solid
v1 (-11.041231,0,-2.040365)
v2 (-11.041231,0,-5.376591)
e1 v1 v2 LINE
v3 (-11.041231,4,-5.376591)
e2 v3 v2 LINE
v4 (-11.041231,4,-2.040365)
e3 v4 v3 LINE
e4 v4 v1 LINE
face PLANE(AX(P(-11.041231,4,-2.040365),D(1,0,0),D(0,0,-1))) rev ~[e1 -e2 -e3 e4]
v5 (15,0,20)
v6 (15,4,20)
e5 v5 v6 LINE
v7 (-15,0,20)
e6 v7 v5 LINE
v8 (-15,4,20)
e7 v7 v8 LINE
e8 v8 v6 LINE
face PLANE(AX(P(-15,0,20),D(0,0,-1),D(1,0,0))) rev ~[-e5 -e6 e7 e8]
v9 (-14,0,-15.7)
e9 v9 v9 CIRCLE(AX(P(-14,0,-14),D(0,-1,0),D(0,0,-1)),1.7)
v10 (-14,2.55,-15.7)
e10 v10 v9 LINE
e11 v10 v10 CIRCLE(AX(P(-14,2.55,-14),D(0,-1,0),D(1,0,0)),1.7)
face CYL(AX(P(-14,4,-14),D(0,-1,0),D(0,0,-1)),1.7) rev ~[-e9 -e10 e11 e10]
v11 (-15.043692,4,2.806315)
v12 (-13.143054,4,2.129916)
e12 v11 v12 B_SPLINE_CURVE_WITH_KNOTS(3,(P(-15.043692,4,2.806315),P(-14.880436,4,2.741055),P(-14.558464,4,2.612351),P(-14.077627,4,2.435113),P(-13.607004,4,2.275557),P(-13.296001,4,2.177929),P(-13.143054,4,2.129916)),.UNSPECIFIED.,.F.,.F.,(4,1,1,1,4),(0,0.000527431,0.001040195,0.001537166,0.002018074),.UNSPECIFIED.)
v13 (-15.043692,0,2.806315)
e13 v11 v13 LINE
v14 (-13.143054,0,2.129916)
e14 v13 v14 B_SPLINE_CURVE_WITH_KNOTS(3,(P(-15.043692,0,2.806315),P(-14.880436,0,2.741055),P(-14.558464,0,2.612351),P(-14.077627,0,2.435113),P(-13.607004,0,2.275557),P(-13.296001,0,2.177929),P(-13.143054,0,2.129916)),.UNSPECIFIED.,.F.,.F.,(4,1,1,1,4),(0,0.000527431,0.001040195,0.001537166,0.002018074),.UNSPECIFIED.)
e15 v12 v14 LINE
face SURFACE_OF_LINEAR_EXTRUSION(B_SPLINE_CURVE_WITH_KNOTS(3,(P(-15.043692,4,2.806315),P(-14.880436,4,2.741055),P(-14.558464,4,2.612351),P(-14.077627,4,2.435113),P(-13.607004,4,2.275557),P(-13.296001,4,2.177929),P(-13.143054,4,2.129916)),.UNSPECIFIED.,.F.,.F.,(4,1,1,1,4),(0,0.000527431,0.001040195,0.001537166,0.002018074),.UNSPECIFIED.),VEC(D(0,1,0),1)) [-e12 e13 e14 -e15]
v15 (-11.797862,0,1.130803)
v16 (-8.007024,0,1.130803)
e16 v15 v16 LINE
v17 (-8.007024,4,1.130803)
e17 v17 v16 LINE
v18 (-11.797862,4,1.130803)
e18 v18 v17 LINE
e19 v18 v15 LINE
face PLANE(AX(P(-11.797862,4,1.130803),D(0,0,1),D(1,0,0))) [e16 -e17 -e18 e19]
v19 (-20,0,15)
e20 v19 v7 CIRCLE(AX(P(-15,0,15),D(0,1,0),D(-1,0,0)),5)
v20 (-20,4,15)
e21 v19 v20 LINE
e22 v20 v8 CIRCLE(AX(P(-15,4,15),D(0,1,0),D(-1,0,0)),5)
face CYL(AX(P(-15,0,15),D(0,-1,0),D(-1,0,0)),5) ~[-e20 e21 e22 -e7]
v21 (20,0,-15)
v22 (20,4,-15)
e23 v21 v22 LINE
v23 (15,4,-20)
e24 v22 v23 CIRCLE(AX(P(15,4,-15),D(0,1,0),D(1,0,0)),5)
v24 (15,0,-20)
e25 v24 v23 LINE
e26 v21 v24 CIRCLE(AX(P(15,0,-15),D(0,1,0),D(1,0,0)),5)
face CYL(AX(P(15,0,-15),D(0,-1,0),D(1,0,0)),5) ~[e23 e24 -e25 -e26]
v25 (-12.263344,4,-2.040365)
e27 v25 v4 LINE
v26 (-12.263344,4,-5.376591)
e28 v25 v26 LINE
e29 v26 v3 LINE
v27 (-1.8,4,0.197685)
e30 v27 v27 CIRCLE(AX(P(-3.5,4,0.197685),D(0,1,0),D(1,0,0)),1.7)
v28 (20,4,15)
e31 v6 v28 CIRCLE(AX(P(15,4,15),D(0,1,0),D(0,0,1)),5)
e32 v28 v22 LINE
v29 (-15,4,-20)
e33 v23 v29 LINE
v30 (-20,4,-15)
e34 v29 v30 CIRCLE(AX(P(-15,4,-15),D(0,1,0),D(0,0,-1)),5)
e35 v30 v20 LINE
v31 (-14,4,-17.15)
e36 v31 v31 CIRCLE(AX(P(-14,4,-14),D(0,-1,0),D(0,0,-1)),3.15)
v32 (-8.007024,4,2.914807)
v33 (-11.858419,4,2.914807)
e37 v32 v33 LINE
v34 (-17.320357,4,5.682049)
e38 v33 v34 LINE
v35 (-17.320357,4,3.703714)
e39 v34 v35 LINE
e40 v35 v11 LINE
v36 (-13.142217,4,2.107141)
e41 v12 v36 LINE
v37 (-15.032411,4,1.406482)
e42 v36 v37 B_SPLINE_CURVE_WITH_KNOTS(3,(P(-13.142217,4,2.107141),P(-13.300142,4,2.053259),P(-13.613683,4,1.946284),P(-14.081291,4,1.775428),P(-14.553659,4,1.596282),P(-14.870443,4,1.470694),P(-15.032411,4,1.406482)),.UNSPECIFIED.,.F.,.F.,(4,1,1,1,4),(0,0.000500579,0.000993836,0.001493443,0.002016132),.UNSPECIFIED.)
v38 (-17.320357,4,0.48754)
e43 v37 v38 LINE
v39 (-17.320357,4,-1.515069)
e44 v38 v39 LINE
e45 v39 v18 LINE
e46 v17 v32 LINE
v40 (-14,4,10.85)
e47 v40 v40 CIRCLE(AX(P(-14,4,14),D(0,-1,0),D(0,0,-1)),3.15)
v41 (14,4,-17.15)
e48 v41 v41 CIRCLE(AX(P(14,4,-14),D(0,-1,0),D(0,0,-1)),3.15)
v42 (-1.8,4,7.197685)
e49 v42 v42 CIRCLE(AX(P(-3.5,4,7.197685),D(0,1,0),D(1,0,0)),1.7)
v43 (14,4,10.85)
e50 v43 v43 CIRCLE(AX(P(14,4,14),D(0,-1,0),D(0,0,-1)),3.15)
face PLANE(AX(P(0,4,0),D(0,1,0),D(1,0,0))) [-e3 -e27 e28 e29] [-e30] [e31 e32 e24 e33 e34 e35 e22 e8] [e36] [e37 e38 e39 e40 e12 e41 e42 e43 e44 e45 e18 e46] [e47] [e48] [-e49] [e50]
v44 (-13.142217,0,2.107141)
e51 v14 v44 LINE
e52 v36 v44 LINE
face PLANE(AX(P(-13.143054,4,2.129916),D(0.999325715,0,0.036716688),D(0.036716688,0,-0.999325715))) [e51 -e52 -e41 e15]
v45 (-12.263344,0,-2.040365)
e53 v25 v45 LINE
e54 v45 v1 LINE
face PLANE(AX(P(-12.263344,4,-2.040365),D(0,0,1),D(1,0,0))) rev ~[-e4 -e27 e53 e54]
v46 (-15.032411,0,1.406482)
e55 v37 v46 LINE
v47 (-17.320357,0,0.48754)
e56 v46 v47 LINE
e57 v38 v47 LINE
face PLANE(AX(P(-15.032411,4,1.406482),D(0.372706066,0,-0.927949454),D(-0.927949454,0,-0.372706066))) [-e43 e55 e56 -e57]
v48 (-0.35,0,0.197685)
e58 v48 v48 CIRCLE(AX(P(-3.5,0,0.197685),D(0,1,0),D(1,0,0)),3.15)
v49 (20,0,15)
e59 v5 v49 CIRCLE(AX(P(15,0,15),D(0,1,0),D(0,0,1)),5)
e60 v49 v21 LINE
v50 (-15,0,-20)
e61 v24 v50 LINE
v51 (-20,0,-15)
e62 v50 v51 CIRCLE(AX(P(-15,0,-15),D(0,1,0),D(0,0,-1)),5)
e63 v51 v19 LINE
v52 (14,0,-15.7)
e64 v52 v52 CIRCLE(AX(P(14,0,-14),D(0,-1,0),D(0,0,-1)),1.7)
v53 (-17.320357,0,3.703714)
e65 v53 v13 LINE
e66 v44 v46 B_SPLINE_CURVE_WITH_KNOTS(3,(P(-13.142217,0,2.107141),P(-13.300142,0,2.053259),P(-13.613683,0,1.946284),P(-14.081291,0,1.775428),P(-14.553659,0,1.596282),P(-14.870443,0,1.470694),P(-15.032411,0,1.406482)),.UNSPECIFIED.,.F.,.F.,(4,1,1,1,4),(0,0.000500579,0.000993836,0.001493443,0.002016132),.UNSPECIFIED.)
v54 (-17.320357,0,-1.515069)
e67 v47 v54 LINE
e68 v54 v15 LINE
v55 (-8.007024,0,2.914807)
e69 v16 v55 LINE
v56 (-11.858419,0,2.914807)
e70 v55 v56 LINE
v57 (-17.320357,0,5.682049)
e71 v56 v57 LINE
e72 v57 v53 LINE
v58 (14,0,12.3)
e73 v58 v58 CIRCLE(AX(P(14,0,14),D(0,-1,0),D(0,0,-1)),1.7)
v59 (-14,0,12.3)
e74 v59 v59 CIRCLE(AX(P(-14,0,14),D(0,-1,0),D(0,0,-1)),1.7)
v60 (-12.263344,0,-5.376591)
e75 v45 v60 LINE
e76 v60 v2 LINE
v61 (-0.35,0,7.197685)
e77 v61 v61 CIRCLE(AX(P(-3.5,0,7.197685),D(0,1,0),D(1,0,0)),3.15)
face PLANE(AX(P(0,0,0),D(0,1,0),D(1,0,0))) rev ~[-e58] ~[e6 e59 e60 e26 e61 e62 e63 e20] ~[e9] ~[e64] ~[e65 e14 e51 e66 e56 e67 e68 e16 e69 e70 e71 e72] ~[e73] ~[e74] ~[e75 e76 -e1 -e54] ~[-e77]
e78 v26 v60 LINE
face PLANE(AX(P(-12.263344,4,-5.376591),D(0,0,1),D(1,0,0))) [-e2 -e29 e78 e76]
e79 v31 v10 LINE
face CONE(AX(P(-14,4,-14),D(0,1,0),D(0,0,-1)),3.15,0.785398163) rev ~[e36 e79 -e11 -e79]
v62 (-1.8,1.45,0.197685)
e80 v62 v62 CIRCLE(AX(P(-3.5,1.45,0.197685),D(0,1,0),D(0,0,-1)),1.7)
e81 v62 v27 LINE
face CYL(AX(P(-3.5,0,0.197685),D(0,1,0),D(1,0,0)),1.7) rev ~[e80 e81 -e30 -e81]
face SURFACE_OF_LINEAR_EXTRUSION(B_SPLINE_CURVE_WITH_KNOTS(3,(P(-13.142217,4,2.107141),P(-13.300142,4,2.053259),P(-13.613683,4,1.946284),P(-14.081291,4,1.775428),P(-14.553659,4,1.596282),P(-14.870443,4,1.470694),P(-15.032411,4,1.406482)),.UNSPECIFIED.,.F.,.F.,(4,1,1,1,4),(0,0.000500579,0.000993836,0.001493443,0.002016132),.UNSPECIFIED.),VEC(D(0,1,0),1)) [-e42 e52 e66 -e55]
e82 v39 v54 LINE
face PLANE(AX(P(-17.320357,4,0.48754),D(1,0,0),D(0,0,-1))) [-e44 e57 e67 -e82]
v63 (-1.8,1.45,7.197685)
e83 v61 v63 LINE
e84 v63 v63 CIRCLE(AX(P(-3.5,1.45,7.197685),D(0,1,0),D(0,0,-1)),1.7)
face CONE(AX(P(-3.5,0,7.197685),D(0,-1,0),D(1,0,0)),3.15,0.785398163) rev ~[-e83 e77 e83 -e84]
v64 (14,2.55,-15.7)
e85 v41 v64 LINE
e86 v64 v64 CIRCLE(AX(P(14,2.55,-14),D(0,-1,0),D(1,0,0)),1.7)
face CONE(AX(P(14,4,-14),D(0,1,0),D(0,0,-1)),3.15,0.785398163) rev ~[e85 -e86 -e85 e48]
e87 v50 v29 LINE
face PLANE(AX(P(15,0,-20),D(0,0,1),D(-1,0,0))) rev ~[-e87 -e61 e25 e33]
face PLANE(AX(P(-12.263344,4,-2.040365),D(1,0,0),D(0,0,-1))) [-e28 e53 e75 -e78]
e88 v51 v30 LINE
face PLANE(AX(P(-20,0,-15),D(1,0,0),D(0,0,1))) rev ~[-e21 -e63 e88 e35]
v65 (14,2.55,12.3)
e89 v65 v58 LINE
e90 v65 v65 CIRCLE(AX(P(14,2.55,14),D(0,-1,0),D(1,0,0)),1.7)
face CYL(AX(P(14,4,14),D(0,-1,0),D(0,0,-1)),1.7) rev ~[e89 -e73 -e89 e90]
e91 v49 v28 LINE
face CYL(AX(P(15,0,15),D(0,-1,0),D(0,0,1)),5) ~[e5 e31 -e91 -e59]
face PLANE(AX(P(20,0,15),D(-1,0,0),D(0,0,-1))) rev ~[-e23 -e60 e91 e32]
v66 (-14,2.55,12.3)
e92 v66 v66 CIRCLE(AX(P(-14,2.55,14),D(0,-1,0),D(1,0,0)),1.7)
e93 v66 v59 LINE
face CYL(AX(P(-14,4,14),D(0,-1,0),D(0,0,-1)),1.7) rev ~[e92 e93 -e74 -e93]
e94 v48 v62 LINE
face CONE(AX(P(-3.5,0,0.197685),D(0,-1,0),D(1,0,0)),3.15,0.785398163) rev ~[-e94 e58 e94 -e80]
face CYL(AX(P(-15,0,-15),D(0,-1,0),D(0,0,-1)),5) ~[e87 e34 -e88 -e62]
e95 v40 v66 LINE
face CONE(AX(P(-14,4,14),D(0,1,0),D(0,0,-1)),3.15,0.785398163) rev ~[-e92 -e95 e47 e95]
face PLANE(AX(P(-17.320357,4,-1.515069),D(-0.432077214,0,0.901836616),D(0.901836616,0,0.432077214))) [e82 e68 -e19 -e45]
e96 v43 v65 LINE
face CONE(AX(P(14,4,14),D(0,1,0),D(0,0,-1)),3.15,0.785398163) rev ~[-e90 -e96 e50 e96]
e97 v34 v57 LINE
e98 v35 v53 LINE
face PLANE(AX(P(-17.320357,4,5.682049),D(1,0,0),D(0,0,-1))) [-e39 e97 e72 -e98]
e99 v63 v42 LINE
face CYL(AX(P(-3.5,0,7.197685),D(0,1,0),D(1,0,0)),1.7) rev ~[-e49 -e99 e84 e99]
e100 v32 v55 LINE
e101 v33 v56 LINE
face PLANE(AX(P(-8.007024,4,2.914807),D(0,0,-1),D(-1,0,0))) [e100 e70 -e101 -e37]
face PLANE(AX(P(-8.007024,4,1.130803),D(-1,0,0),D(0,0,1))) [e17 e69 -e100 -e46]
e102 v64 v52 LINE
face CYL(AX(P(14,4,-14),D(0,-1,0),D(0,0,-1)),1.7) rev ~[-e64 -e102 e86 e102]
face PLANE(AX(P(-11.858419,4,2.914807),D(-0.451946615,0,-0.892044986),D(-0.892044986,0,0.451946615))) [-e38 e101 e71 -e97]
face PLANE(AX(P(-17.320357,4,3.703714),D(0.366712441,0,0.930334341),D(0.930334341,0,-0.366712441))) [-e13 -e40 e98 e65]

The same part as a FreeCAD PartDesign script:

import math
import FreeCAD as App
import Part
import Sketcher

V = App.Vector
Q = App.Units.Quantity


def add_polygon(sketch, points):
    """Adds a closed chain of lines whose ends are joined by coincident constraints."""
    first, n = sketch.GeometryCount, len(points)
    for a, b in zip(points, points[1:] + points[:1]):
        sketch.addGeometry(Part.LineSegment(App.Vector(*a, 0), App.Vector(*b, 0)), False)
    for i in range(n):
        sketch.addConstraint(Sketcher.Constraint("Coincident", first + i, 2, first + (i + 1) % n, 1))

doc = App.newDocument("Part")
body = doc.addObject("PartDesign::Body", "Body")

sketch1 = body.newObject("Sketcher::SketchObject", "Sketch")
sketch1.AttachmentSupport = (doc.getObject("XZ_Plane"), [""])
sketch1.MapMode = "FlatFace"
sketch1.addGeometry(Part.LineSegment(V(-15, 20, 0), V(15, 20, 0)), False)
sketch1.addGeometry(Part.ArcOfCircle(Part.Circle(V(15, 15, 0), V(0, 0, 1), 5), math.radians(0), math.radians(90)), False)
sketch1.addGeometry(Part.LineSegment(V(20, 15, 0), V(20, -15, 0)), False)
sketch1.addGeometry(Part.ArcOfCircle(Part.Circle(V(15, -15, 0), V(0, 0, 1), 5), math.radians(-90), math.radians(0)), False)
sketch1.addGeometry(Part.LineSegment(V(15, -20, 0), V(-15, -20, 0)), False)
sketch1.addGeometry(Part.ArcOfCircle(Part.Circle(V(-15, -15, 0), V(0, 0, 1), 5), math.radians(180), math.radians(270)), False)
sketch1.addGeometry(Part.LineSegment(V(-20, -15, 0), V(-20, 15, 0)), False)
sketch1.addGeometry(Part.ArcOfCircle(Part.Circle(V(-15, 15, 0), V(0, 0, 1), 5), math.radians(90), math.radians(180)), False)
sketch1.addConstraint(Sketcher.Constraint("Tangent", 0, 2, 1, 2))
sketch1.addConstraint(Sketcher.Constraint("Tangent", 1, 1, 2, 1))
sketch1.addConstraint(Sketcher.Constraint("Tangent", 2, 2, 3, 2))
sketch1.addConstraint(Sketcher.Constraint("Tangent", 3, 1, 4, 1))
sketch1.addConstraint(Sketcher.Constraint("Tangent", 4, 2, 5, 2))
sketch1.addConstraint(Sketcher.Constraint("Tangent", 5, 1, 6, 1))
sketch1.addConstraint(Sketcher.Constraint("Tangent", 6, 2, 7, 2))
sketch1.addConstraint(Sketcher.Constraint("Tangent", 7, 1, 0, 1))
sketch1.addConstraint(Sketcher.Constraint("Horizontal", 0))
sketch1.addConstraint(Sketcher.Constraint("Vertical", 2))
sketch1.addConstraint(Sketcher.Constraint("Horizontal", 4))
sketch1.addConstraint(Sketcher.Constraint("Vertical", 6))
sketch1.addConstraint(Sketcher.Constraint("Equal", 1, 3))
sketch1.addConstraint(Sketcher.Constraint("Equal", 3, 5))
sketch1.addConstraint(Sketcher.Constraint("Equal", 5, 7))
sketch1.addConstraint(Sketcher.Constraint("Symmetric", 1, 3, 5, 3, -1, 1))
sketch1.addConstraint(Sketcher.Constraint("Equal", 4, 2))
sketch1.addConstraint(Sketcher.Constraint("Radius", 1, Q("5 mm")))
sketch1.addConstraint(Sketcher.Constraint("DistanceX", 0, 1, 0, 2, Q("30 mm")))
pad1 = body.newObject("PartDesign::Pad", "Pad")
pad1.Profile = sketch1
pad1.Length = 4
pad1.Reversed = True

sketch2 = body.newObject("Sketcher::SketchObject", "Sketch001")
sketch2.AttachmentSupport = (doc.getObject("XZ_Plane"), [""])
sketch2.MapMode = "FlatFace"
sketch2.AttachmentOffset = App.Placement(V(0, 0, -4), App.Rotation())
sketch2.addGeometry(Part.Circle(V(-14, -14, 0), V(0, 0, 1), 1.7), False)
sketch2.addGeometry(Part.Circle(V(14, -14, 0), V(0, 0, 1), 1.7), False)
sketch2.addGeometry(Part.Circle(V(14, 14, 0), V(0, 0, 1), 1.7), False)
sketch2.addGeometry(Part.Circle(V(-14, 14, 0), V(0, 0, 1), 1.7), False)
sketch2.addConstraint(Sketcher.Constraint("Equal", 0, 1))
sketch2.addConstraint(Sketcher.Constraint("Equal", 1, 2))
sketch2.addConstraint(Sketcher.Constraint("Equal", 2, 3))
sketch2.addConstraint(Sketcher.Constraint("Symmetric", 0, 3, 2, 3, -1, 1))
sketch2.addConstraint(Sketcher.Constraint("Symmetric", 1, 3, 3, 3, -1, 1))
sketch2.addConstraint(Sketcher.Constraint("Symmetric", 0, 3, 1, 3, -2))
sketch2.addConstraint(Sketcher.Constraint("Diameter", 0, Q("3.4 mm")))
sketch2.addConstraint(Sketcher.Constraint("DistanceX", 0, 3, -1, 1, Q("14 mm")))
sketch2.addConstraint(Sketcher.Constraint("DistanceY", 0, 3, -1, 1, Q("14 mm")))
doc.recompute()
hole = body.newObject("PartDesign::Hole", "Hole")
hole.Profile = sketch2
hole.ThreadType = "None"
hole.Diameter = 3.4
hole.DepthType = "ThroughAll"
hole.HoleCutType = "Countersink"
hole.HoleCutDiameter = 6.3
hole.HoleCutCountersinkAngle = 90
hole.Reversed = True

sketch3 = body.newObject("Sketcher::SketchObject", "Sketch002")
sketch3.AttachmentSupport = (doc.getObject("XZ_Plane"), [""])
sketch3.MapMode = "FlatFace"
sketch3.addGeometry(Part.Circle(V(-3.5, 0.2, 0), V(0, 0, 1), 1.7), False)
sketch3.addGeometry(Part.Circle(V(-3.5, 7.2, 0), V(0, 0, 1), 1.7), False)
sketch3.addConstraint(Sketcher.Constraint("Equal", 0, 1))
sketch3.addConstraint(Sketcher.Constraint("Vertical", 0, 3, 1, 3))
sketch3.addConstraint(Sketcher.Constraint("Diameter", 0, Q("3.4 mm")))
sketch3.addConstraint(Sketcher.Constraint("DistanceY", 0, 3, 1, 3, Q("7 mm")))
sketch3.addConstraint(Sketcher.Constraint("DistanceX", 0, 3, -1, 1, Q("3.5 mm")))
sketch3.addConstraint(Sketcher.Constraint("DistanceY", -1, 1, 0, 3, Q("0.197685 mm")))
doc.recompute()
hole2 = body.newObject("PartDesign::Hole", "Hole001")
hole2.Profile = sketch3
hole2.ThreadType = "None"
hole2.Diameter = 3.4
hole2.DepthType = "ThroughAll"
hole2.HoleCutType = "Countersink"
hole2.HoleCutDiameter = 6.3
hole2.HoleCutCountersinkAngle = 90

sketch4 = body.newObject("Sketcher::SketchObject", "Sketch003")
sketch4.AttachmentSupport = (doc.getObject("XZ_Plane"), [""])
sketch4.MapMode = "FlatFace"
sketch4.AttachmentOffset = App.Placement(V(0, 0, -4), App.Rotation())
add_polygon(sketch4, [(-12.263344, -5.376591), (-12.263344, -2.040365), (-11.041231, -2.040365), (-11.041231, -5.376591)])
sketch4.addGeometry(Part.BSplineCurve([V(-15.043692, 2.806315, 0), V(-14.880436, 2.741055, 0), V(-14.558464, 2.612351, 0), V(-14.077627, 2.435113, 0), V(-13.607004, 2.275557, 0), V(-13.296001, 2.177929, 0), V(-13.143054, 2.129916, 0)], [4, 1, 1, 1, 4], [0, 0.000527431, 0.001040195, 0.001537166, 0.002018074], False, 3, [1, 1, 1, 1, 1, 1, 1], False), False)
sketch4.addGeometry(Part.LineSegment(V(-15.043692, 2.806315, 0), V(-17.320357, 3.703714, 0)), False)
sketch4.addGeometry(Part.LineSegment(V(-17.320357, 3.703714, 0), V(-17.320357, 5.682049, 0)), False)
sketch4.addGeometry(Part.LineSegment(V(-17.320357, 5.682049, 0), V(-11.858419, 2.914807, 0)), False)
sketch4.addGeometry(Part.LineSegment(V(-11.858419, 2.914807, 0), V(-8.007024, 2.914807, 0)), False)
sketch4.addGeometry(Part.LineSegment(V(-8.007024, 2.914807, 0), V(-8.007024, 1.130803, 0)), False)
sketch4.addGeometry(Part.LineSegment(V(-8.007024, 1.130803, 0), V(-11.797862, 1.130803, 0)), False)
sketch4.addGeometry(Part.LineSegment(V(-11.797862, 1.130803, 0), V(-17.320357, -1.515069, 0)), False)
sketch4.addGeometry(Part.LineSegment(V(-17.320357, -1.515069, 0), V(-17.320357, 0.48754, 0)), False)
sketch4.addGeometry(Part.LineSegment(V(-17.320357, 0.48754, 0), V(-15.032411, 1.406482, 0)), False)
sketch4.addGeometry(Part.BSplineCurve([V(-13.142217, 2.107141, 0), V(-13.300142, 2.053259, 0), V(-13.613683, 1.946284, 0), V(-14.081291, 1.775428, 0), V(-14.553659, 1.596282, 0), V(-14.870443, 1.470694, 0), V(-15.032411, 1.406482, 0)], [4, 1, 1, 1, 4], [0, 0.000500579, 0.000993836, 0.001493443, 0.002016132], False, 3, [1, 1, 1, 1, 1, 1, 1], False), False)
sketch4.addGeometry(Part.LineSegment(V(-13.142217, 2.107141, 0), V(-13.143054, 2.129916, 0)), False)
sketch4.addConstraint(Sketcher.Constraint("Block", 4))
sketch4.addConstraint(Sketcher.Constraint("Block", 14))
sketch4.addConstraint(Sketcher.Constraint("Coincident", 4, 1, 5, 1))
sketch4.addConstraint(Sketcher.Constraint("Coincident", 5, 2, 6, 1))
sketch4.addConstraint(Sketcher.Constraint("Coincident", 6, 2, 7, 1))
sketch4.addConstraint(Sketcher.Constraint("Coincident", 7, 2, 8, 1))
sketch4.addConstraint(Sketcher.Constraint("Coincident", 8, 2, 9, 1))
sketch4.addConstraint(Sketcher.Constraint("Coincident", 9, 2, 10, 1))
sketch4.addConstraint(Sketcher.Constraint("Coincident", 10, 2, 11, 1))
sketch4.addConstraint(Sketcher.Constraint("Coincident", 11, 2, 12, 1))
sketch4.addConstraint(Sketcher.Constraint("Coincident", 12, 2, 13, 1))
sketch4.addConstraint(Sketcher.Constraint("Coincident", 13, 2, 14, 2))
sketch4.addConstraint(Sketcher.Constraint("Coincident", 14, 1, 15, 1))
sketch4.addConstraint(Sketcher.Constraint("Coincident", 15, 2, 4, 2))
sketch4.addConstraint(Sketcher.Constraint("Vertical", 0))
sketch4.addConstraint(Sketcher.Constraint("Horizontal", 1))
sketch4.addConstraint(Sketcher.Constraint("Vertical", 2))
sketch4.addConstraint(Sketcher.Constraint("Horizontal", 3))
sketch4.addConstraint(Sketcher.Constraint("Vertical", 6))
sketch4.addConstraint(Sketcher.Constraint("Horizontal", 8))
sketch4.addConstraint(Sketcher.Constraint("Vertical", 9))
sketch4.addConstraint(Sketcher.Constraint("Horizontal", 10))
sketch4.addConstraint(Sketcher.Constraint("Vertical", 12))
sketch4.addConstraint(Sketcher.Constraint("Vertical", 6, 2, 11, 2))
sketch4.addConstraint(Sketcher.Constraint("DistanceX", 10, 2, 10, 1, Q("3.790839 mm")))
sketch4.addConstraint(Sketcher.Constraint("DistanceY", 12, 1, 12, 2, Q("2.002609 mm")))
sketch4.addConstraint(Sketcher.Constraint("DistanceY", 3, 2, 7, 2, Q("8.291398 mm")))
sketch4.addConstraint(Sketcher.Constraint("Distance", 7, Q("6.12294 mm")))
sketch4.addConstraint(Sketcher.Constraint("Distance", 11, Q("6.123609 mm")))
sketch4.addConstraint(Sketcher.Constraint("DistanceX", 1, 1, 1, 2, Q("1.222114 mm")))
sketch4.addConstraint(Sketcher.Constraint("DistanceX", 8, 1, 8, 2, Q("3.851395 mm")))
sketch4.addConstraint(Sketcher.Constraint("DistanceY", 0, 1, 0, 2, Q("3.336227 mm")))
sketch4.addConstraint(Sketcher.Constraint("DistanceY", 6, 1, 6, 2, Q("1.978335 mm")))
sketch4.addConstraint(Sketcher.Constraint("DistanceY", 9, 2, 9, 1, Q("1.784004 mm")))
sketch4.addConstraint(Sketcher.Constraint("DistanceX", 1, 2, -1, 1, Q("11.041231 mm")))
sketch4.addConstraint(Sketcher.Constraint("DistanceY", 2, 2, -1, 1, Q("5.376591 mm")))
sketch4.addConstraint(Sketcher.Constraint("DistanceY", -1, 1, 6, 2, Q("5.682049 mm")))
sketch4.addConstraint(Sketcher.Constraint("DistanceX", 7, 2, -1, 1, Q("11.858419 mm")))
pocket1 = body.newObject("PartDesign::Pocket", "Pocket")
pocket1.Profile = sketch4
pocket1.Length = 4
pocket1.Reversed = True

doc.recompute()
